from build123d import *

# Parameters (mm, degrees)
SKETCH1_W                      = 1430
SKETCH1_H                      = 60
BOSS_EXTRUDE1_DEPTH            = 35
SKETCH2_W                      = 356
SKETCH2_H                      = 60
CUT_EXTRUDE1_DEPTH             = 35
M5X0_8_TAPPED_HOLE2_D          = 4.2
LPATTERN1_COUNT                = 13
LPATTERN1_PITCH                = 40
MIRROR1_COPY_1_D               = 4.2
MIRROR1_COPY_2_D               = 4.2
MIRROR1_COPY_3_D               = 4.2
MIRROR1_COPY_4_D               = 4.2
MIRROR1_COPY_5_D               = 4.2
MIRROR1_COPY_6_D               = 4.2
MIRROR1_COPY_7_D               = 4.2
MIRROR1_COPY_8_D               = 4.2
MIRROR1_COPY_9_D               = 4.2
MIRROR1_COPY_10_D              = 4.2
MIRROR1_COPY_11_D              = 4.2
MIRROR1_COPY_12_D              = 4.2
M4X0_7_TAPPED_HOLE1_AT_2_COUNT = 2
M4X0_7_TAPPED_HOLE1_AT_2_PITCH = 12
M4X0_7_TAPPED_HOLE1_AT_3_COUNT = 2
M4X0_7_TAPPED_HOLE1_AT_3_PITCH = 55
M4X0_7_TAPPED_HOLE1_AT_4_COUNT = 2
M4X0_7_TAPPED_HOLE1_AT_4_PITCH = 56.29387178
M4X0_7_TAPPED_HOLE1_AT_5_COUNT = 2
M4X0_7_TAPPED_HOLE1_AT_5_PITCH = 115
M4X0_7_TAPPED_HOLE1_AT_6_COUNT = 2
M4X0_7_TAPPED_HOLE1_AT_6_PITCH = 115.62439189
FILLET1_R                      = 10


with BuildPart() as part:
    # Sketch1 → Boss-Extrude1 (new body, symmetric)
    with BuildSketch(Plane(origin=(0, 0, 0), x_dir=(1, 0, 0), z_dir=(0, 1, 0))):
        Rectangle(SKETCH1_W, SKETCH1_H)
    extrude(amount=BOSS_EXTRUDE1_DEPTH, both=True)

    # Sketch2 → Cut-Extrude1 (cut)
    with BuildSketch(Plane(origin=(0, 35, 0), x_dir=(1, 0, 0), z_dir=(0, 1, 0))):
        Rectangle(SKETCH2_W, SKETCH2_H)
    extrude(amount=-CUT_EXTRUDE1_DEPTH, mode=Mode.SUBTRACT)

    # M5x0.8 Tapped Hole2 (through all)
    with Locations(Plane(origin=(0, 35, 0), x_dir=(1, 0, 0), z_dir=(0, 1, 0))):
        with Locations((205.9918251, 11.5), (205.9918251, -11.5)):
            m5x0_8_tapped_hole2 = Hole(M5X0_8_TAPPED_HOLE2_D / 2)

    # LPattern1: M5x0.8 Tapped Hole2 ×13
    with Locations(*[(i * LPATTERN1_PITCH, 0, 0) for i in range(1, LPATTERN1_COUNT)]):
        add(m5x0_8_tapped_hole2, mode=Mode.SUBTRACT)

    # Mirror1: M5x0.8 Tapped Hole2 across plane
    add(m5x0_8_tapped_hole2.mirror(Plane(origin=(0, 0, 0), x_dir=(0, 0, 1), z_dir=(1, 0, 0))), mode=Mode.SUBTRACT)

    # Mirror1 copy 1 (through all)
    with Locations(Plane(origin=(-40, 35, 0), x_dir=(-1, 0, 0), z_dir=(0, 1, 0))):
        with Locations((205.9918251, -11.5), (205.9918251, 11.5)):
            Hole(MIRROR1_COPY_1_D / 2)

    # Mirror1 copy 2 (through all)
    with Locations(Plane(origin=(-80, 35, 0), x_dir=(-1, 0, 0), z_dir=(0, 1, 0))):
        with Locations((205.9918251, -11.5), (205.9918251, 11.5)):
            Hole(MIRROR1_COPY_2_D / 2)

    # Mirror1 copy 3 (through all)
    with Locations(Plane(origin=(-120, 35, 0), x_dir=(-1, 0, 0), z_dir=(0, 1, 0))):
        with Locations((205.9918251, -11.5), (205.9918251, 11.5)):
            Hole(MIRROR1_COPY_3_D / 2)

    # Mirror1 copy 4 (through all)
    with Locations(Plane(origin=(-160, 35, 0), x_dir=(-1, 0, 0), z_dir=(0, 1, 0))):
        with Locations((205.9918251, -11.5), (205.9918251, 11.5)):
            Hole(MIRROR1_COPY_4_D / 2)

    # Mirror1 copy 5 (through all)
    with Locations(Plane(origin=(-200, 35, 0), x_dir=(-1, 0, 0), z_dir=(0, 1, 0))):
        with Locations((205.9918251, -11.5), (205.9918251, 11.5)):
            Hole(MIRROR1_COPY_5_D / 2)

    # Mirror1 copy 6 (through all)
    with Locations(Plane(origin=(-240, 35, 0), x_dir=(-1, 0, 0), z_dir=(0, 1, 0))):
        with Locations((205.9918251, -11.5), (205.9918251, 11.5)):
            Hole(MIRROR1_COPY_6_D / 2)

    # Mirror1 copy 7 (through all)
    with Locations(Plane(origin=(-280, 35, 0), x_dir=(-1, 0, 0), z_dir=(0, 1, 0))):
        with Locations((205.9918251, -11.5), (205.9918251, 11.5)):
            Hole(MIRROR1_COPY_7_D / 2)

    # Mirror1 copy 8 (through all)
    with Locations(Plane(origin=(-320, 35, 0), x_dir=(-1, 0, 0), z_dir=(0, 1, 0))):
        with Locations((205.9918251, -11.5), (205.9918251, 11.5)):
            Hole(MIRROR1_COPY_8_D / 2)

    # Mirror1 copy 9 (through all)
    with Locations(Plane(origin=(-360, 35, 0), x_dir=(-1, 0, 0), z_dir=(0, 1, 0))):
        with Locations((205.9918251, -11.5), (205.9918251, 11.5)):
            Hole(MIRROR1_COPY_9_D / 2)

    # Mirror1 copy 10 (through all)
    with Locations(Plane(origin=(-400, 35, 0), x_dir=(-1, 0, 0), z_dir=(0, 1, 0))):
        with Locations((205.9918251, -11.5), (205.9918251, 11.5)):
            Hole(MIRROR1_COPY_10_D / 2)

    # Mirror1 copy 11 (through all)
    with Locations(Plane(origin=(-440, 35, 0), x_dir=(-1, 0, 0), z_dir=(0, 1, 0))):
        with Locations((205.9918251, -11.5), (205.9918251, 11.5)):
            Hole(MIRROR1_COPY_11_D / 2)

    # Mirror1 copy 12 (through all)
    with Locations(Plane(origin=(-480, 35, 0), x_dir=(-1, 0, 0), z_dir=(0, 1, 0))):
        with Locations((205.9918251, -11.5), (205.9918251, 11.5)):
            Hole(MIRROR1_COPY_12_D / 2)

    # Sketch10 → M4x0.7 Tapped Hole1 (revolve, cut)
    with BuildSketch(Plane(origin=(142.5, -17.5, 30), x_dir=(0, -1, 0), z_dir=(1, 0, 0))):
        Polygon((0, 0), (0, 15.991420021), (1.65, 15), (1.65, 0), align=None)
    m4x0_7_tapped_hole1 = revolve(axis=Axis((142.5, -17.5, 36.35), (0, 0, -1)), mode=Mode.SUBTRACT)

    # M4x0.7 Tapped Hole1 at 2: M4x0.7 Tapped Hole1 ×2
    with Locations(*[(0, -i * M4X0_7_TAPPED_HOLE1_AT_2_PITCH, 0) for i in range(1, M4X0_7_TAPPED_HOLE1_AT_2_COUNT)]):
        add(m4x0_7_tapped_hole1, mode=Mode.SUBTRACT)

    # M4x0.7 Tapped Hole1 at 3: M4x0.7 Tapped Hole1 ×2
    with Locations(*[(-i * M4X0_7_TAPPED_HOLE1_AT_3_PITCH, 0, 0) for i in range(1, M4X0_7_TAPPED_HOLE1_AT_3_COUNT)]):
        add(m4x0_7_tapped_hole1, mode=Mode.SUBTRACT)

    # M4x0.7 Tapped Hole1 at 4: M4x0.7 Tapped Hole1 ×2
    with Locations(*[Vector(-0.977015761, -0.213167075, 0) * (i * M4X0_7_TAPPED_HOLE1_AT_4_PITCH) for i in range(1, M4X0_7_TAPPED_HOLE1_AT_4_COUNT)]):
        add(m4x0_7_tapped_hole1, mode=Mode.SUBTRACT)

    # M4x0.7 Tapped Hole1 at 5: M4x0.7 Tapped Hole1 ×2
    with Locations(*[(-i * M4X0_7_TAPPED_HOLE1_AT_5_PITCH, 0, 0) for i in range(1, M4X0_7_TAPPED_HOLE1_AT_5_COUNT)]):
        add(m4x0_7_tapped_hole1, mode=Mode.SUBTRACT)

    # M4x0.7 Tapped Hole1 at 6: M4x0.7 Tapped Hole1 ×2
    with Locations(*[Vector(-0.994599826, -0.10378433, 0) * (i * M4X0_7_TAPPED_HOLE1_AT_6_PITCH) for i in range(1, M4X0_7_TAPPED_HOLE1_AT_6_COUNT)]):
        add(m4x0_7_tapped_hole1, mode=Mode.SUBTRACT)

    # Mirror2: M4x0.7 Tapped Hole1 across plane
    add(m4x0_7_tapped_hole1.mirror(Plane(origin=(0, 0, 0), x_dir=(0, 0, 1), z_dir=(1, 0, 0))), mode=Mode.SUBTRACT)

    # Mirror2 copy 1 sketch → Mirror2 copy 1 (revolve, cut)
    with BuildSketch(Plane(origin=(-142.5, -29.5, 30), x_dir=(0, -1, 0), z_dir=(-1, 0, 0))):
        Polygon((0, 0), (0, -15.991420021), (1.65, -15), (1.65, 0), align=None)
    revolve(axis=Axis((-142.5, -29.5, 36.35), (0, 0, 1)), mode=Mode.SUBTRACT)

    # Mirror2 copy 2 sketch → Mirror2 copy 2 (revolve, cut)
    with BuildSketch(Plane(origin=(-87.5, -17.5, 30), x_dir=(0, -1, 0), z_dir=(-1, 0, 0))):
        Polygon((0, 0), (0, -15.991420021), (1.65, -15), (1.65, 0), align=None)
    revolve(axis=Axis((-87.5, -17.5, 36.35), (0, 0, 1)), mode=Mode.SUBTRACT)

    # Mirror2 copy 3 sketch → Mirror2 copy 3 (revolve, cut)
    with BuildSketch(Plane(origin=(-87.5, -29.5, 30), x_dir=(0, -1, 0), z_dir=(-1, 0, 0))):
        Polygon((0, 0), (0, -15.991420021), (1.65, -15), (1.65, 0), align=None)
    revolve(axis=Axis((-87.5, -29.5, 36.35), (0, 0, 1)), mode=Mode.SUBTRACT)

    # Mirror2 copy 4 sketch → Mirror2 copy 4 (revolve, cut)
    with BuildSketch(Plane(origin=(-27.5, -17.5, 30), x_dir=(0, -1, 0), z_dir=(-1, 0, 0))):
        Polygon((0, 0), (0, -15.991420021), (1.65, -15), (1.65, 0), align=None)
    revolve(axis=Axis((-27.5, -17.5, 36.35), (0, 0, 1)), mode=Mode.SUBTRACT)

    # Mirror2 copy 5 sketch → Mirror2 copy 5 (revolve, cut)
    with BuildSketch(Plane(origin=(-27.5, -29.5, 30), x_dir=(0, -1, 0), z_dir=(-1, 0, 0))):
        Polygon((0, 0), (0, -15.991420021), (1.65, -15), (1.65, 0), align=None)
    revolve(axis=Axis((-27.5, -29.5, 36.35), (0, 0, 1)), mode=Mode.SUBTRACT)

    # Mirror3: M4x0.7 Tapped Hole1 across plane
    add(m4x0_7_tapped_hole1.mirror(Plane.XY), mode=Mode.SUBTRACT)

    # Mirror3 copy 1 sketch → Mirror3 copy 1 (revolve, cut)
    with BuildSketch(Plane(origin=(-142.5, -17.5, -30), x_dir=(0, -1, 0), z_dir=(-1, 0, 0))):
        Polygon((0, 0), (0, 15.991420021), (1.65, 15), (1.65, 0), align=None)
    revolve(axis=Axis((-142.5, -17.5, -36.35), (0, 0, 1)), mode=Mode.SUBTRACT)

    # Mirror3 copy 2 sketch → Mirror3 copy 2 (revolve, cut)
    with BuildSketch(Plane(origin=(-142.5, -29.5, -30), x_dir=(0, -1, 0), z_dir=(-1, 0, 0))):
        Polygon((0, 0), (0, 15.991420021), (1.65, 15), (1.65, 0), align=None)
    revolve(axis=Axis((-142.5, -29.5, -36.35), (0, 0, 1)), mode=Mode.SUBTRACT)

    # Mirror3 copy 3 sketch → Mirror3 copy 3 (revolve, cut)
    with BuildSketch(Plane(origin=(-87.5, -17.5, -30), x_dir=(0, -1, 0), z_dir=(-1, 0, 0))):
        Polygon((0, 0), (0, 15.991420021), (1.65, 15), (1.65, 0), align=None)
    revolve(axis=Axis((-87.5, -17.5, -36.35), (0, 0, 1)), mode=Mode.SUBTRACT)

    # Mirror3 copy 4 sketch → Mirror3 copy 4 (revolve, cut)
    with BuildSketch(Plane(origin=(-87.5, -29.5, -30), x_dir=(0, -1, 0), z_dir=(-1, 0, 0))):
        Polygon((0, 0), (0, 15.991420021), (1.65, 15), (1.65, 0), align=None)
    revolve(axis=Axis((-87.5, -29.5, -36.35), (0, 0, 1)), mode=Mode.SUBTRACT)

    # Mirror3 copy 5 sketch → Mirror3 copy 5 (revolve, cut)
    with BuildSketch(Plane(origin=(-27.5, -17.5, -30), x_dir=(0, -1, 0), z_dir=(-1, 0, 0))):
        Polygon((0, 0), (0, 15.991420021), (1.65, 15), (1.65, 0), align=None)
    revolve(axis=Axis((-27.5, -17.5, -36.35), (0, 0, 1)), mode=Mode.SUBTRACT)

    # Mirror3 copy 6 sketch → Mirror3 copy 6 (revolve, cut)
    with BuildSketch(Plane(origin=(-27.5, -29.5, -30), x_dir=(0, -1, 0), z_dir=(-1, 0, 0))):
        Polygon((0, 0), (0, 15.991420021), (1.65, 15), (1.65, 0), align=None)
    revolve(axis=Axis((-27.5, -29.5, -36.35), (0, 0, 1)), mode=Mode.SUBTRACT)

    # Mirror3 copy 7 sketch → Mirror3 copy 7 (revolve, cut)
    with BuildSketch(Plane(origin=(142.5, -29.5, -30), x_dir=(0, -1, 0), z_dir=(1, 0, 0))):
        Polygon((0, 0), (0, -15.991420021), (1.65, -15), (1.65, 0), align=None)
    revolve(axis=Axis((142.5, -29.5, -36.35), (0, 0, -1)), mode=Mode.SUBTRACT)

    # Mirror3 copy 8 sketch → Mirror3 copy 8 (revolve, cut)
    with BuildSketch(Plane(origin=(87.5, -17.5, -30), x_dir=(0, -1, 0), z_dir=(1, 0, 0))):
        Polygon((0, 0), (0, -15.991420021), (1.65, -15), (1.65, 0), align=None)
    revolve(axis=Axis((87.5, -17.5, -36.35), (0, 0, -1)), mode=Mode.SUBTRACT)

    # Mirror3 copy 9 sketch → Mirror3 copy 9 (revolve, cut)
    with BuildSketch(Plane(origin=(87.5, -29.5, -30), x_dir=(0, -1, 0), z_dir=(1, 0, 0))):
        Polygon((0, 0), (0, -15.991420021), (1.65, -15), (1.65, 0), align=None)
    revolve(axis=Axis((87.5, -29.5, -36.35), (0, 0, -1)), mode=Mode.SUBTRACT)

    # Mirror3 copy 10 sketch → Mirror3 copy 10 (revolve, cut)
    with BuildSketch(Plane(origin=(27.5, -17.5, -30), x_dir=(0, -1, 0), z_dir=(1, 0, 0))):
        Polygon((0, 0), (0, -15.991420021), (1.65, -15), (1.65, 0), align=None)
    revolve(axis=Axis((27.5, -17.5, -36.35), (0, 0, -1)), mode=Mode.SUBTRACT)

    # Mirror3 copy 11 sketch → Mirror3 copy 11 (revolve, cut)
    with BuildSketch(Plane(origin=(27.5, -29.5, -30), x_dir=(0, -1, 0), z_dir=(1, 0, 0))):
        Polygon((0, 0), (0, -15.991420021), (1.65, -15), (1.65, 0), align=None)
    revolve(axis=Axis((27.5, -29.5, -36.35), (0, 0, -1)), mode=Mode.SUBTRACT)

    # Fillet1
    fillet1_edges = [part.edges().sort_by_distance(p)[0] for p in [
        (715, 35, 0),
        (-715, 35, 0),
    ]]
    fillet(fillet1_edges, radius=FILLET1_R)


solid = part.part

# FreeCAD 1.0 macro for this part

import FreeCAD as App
import Part
import Sketcher
from FreeCAD import Vector
Q = App.Units.Quantity


def edges_at(feature, points):
    """Names of the edges that pass closest to the given points."""
    edges = feature.Shape.Edges
    near = lambda p: min(range(len(edges)), key=lambda i: edges[i].distToShape(Part.Vertex(*p))[0])
    return sorted({f"Edge{near(p) + 1}" for p in points})


def add_polygon(sketch, points):
    """Adds a closed chain of lines whose ends are joined by coincident constraints."""
    first, n = sketch.GeometryCount, len(points)
    for a, b in zip(points, points[1:] + points[:1]):
        sketch.addGeometry(Part.LineSegment(App.Vector(*a, 0), App.Vector(*b, 0)), False)
    for i in range(n):
        sketch.addConstraint(Sketcher.Constraint("Coincident", first + i, 2, first + (i + 1) % n, 1))

doc = App.newDocument("Part")
body = doc.addObject("PartDesign::Body", "Body")

sketch1 = body.newObject("Sketcher::SketchObject", "Sketch")
sketch1.AttachmentSupport = (doc.getObject("XZ_Plane"), [""])
sketch1.MapMode = "FlatFace"
add_polygon(sketch1, [(-715, -30), (-715, 30), (715, 30), (715, -30)])
sketch1.addConstraint([
    Sketcher.Constraint("Vertical", 0),
    Sketcher.Constraint("Horizontal", 1),
    Sketcher.Constraint("Vertical", 2),
    Sketcher.Constraint("Horizontal", 3),
    Sketcher.Constraint("Symmetric", 0, 2, 2, 2, -1, 1),
    Sketcher.Constraint("DistanceX", 1, 1, 1, 2, 1430.0),
    Sketcher.Constraint("DistanceY", 0, 1, 0, 2, 60.0),
])
pad1 = body.newObject("PartDesign::Pad", "Pad")
pad1.Profile = sketch1
pad1.Length = 70
pad1.Midplane = True

sketch2 = body.newObject("Sketcher::SketchObject", "Sketch001")
sketch2.AttachmentSupport = (doc.getObject("XZ_Plane"), [""])
sketch2.MapMode = "FlatFace"
sketch2.AttachmentOffset = App.Placement(Vector(0, 0, -35), App.Rotation())
add_polygon(sketch2, [(-178, -30), (-178, 30), (178, 30), (178, -30)])
sketch2.addConstraint([
    Sketcher.Constraint("Vertical", 0),
    Sketcher.Constraint("Horizontal", 1),
    Sketcher.Constraint("Vertical", 2),
    Sketcher.Constraint("Horizontal", 3),
    Sketcher.Constraint("Symmetric", 0, 2, 2, 2, -1, 1),
    Sketcher.Constraint("DistanceX", 1, 1, 1, 2, 356.0),
    Sketcher.Constraint("DistanceY", 0, 1, 0, 2, 60.0),
])
pocket1 = body.newObject("PartDesign::Pocket", "Pocket")
pocket1.Profile = sketch2
pocket1.Length = 35
pocket1.Reversed = True

sketch3 = body.newObject("Sketcher::SketchObject", "Sketch002")
sketch3.AttachmentSupport = (doc.getObject("XZ_Plane"), [""])
sketch3.MapMode = "FlatFace"
sketch3.AttachmentOffset = App.Placement(Vector(0, 0, -35), App.Rotation())
sketch3.addGeometry([
    Part.Circle(Vector(206, -11.5, 0), Vector(0, 0, 1), 2.1),
    Part.Circle(Vector(206, 11.5, 0), Vector(0, 0, 1), 2.1),
], False)
sketch3.addConstraint([
    Sketcher.Constraint("Equal", 0, 1),
    Sketcher.Constraint("Symmetric", 0, 3, 1, 3, -1),
    Sketcher.Constraint("Diameter", 0, 4.2),
    Sketcher.Constraint("DistanceY", 0, 3, 1, 3, 23.0),
    Sketcher.Constraint("DistanceX", -1, 1, 0, 3, 205.991825),
])
doc.recompute()
hole = body.newObject("PartDesign::Hole", "Hole")
hole.Profile = sketch3
hole.ThreadType = "None"
hole.Diameter = 4.2
hole.DepthType = "ThroughAll"
hole.Reversed = True
doc.recompute()

linearpattern = body.newObject("PartDesign::LinearPattern", "LinearPattern")
linearpattern.Originals = [hole]
linearpattern.Direction = (doc.getObject("X_Axis"), [""])
linearpattern.Mode = "offset"
linearpattern.Offset = 40
linearpattern.Occurrences = 13
body.Tip = linearpattern
doc.recompute()

mirrored = body.newObject("PartDesign::Mirrored", "Mirrored")
mirrored.Originals = [hole]
mirrored.MirrorPlane = (doc.getObject("YZ_Plane"), [""])
body.Tip = mirrored

sketch4 = body.newObject("Sketcher::SketchObject", "Sketch003")
sketch4.AttachmentSupport = (doc.getObject("XZ_Plane"), [""])
sketch4.MapMode = "FlatFace"
sketch4.AttachmentOffset = App.Placement(Vector(0, 0, -35), App.Rotation())
sketch4.addGeometry([
    Part.Circle(Vector(-246, -11.5, 0), Vector(0, 0, 1), 2.1),
    Part.Circle(Vector(-246, 11.5, 0), Vector(0, 0, 1), 2.1),
], False)
sketch4.addConstraint([
    Sketcher.Constraint("Equal", 0, 1),
    Sketcher.Constraint("Symmetric", 0, 3, 1, 3, -1),
    Sketcher.Constraint("Diameter", 0, 4.2),
    Sketcher.Constraint("DistanceY", 0, 3, 1, 3, 23.0),
    Sketcher.Constraint("DistanceX", 0, 3, -1, 1, 245.991825),
])
doc.recompute()
hole2 = body.newObject("PartDesign::Hole", "Hole001")
hole2.Profile = sketch4
hole2.ThreadType = "None"
hole2.Diameter = 4.2
hole2.DepthType = "ThroughAll"
hole2.Reversed = True

sketch5 = body.newObject("Sketcher::SketchObject", "Sketch004")
sketch5.AttachmentSupport = (doc.getObject("XZ_Plane"), [""])
sketch5.MapMode = "FlatFace"
sketch5.AttachmentOffset = App.Placement(Vector(0, 0, -35), App.Rotation())
sketch5.addGeometry([
    Part.Circle(Vector(-286, -11.5, 0), Vector(0, 0, 1), 2.1),
    Part.Circle(Vector(-286, 11.5, 0), Vector(0, 0, 1), 2.1),
], False)
sketch5.addConstraint([
    Sketcher.Constraint("Equal", 0, 1),
    Sketcher.Constraint("Symmetric", 0, 3, 1, 3, -1),
    Sketcher.Constraint("Diameter", 0, 4.2),
    Sketcher.Constraint("DistanceY", 0, 3, 1, 3, 23.0),
    Sketcher.Constraint("DistanceX", 0, 3, -1, 1, 285.991825),
])
doc.recompute()
hole3 = body.newObject("PartDesign::Hole", "Hole002")
hole3.Profile = sketch5
hole3.ThreadType = "None"
hole3.Diameter = 4.2
hole3.DepthType = "ThroughAll"
hole3.Reversed = True

sketch6 = body.newObject("Sketcher::SketchObject", "Sketch005")
sketch6.AttachmentSupport = (doc.getObject("XZ_Plane"), [""])
sketch6.MapMode = "FlatFace"
sketch6.AttachmentOffset = App.Placement(Vector(0, 0, -35), App.Rotation())
sketch6.addGeometry([
    Part.Circle(Vector(-326, -11.5, 0), Vector(0, 0, 1), 2.1),
    Part.Circle(Vector(-326, 11.5, 0), Vector(0, 0, 1), 2.1),
], False)
sketch6.addConstraint([
    Sketcher.Constraint("Equal", 0, 1),
    Sketcher.Constraint("Symmetric", 0, 3, 1, 3, -1),
    Sketcher.Constraint("Diameter", 0, 4.2),
    Sketcher.Constraint("DistanceY", 0, 3, 1, 3, 23.0),
    Sketcher.Constraint("DistanceX", 0, 3, -1, 1, 325.991825),
])
doc.recompute()
hole4 = body.newObject("PartDesign::Hole", "Hole003")
hole4.Profile = sketch6
hole4.ThreadType = "None"
hole4.Diameter = 4.2
hole4.DepthType = "ThroughAll"
hole4.Reversed = True

sketch7 = body.newObject("Sketcher::SketchObject", "Sketch006")
sketch7.AttachmentSupport = (doc.getObject("XZ_Plane"), [""])
sketch7.MapMode = "FlatFace"
sketch7.AttachmentOffset = App.Placement(Vector(0, 0, -35), App.Rotation())
sketch7.addGeometry([
    Part.Circle(Vector(-366, -11.5, 0), Vector(0, 0, 1), 2.1),
    Part.Circle(Vector(-366, 11.5, 0), Vector(0, 0, 1), 2.1),
], False)
sketch7.addConstraint([
    Sketcher.Constraint("Equal", 0, 1),
    Sketcher.Constraint("Symmetric", 0, 3, 1, 3, -1),
    Sketcher.Constraint("Diameter", 0, 4.2),
    Sketcher.Constraint("DistanceY", 0, 3, 1, 3, 23.0),
    Sketcher.Constraint("DistanceX", 0, 3, -1, 1, 365.991825),
])
doc.recompute()
hole5 = body.newObject("PartDesign::Hole", "Hole004")
hole5.Profile = sketch7
hole5.ThreadType = "None"
hole5.Diameter = 4.2
hole5.DepthType = "ThroughAll"
hole5.Reversed = True

sketch8 = body.newObject("Sketcher::SketchObject", "Sketch007")
sketch8.AttachmentSupport = (doc.getObject("XZ_Plane"), [""])
sketch8.MapMode = "FlatFace"
sketch8.AttachmentOffset = App.Placement(Vector(0, 0, -35), App.Rotation())
sketch8.addGeometry([
    Part.Circle(Vector(-406, -11.5, 0), Vector(0, 0, 1), 2.1),
    Part.Circle(Vector(-406, 11.5, 0), Vector(0, 0, 1), 2.1),
], False)
sketch8.addConstraint([
    Sketcher.Constraint("Equal", 0, 1),
    Sketcher.Constraint("Symmetric", 0, 3, 1, 3, -1),
    Sketcher.Constraint("Diameter", 0, 4.2),
    Sketcher.Constraint("DistanceY", 0, 3, 1, 3, 23.0),
    Sketcher.Constraint("DistanceX", 0, 3, -1, 1, 405.991825),
])
doc.recompute()
hole6 = body.newObject("PartDesign::Hole", "Hole005")
hole6.Profile = sketch8
hole6.ThreadType = "None"
hole6.Diameter = 4.2
hole6.DepthType = "ThroughAll"
hole6.Reversed = True

sketch9 = body.newObject("Sketcher::SketchObject", "Sketch008")
sketch9.AttachmentSupport = (doc.getObject("XZ_Plane"), [""])
sketch9.MapMode = "FlatFace"
sketch9.AttachmentOffset = App.Placement(Vector(0, 0, -35), App.Rotation())
sketch9.addGeometry([
    Part.Circle(Vector(-446, -11.5, 0), Vector(0, 0, 1), 2.1),
    Part.Circle(Vector(-446, 11.5, 0), Vector(0, 0, 1), 2.1),
], False)
sketch9.addConstraint([
    Sketcher.Constraint("Equal", 0, 1),
    Sketcher.Constraint("Symmetric", 0, 3, 1, 3, -1),
    Sketcher.Constraint("Diameter", 0, 4.2),
    Sketcher.Constraint("DistanceY", 0, 3, 1, 3, 23.0),
    Sketcher.Constraint("DistanceX", 0, 3, -1, 1, 445.991825),
])
doc.recompute()
hole7 = body.newObject("PartDesign::Hole", "Hole006")
hole7.Profile = sketch9
hole7.ThreadType = "None"
hole7.Diameter = 4.2
hole7.DepthType = "ThroughAll"
hole7.Reversed = True

sketch10 = body.newObject("Sketcher::SketchObject", "Sketch009")
sketch10.AttachmentSupport = (doc.getObject("XZ_Plane"), [""])
sketch10.MapMode = "FlatFace"
sketch10.AttachmentOffset = App.Placement(Vector(0, 0, -35), App.Rotation())
sketch10.addGeometry([
    Part.Circle(Vector(-486, -11.5, 0), Vector(0, 0, 1), 2.1),
    Part.Circle(Vector(-486, 11.5, 0), Vector(0, 0, 1), 2.1),
], False)
sketch10.addConstraint([
    Sketcher.Constraint("Equal", 0, 1),
    Sketcher.Constraint("Symmetric", 0, 3, 1, 3, -1),
    Sketcher.Constraint("Diameter", 0, 4.2),
    Sketcher.Constraint("DistanceY", 0, 3, 1, 3, 23.0),
    Sketcher.Constraint("DistanceX", 0, 3, -1, 1, 485.991825),
])
doc.recompute()
hole8 = body.newObject("PartDesign::Hole", "Hole007")
hole8.Profile = sketch10
hole8.ThreadType = "None"
hole8.Diameter = 4.2
hole8.DepthType = "ThroughAll"
hole8.Reversed = True

sketch11 = body.newObject("Sketcher::SketchObject", "Sketch010")
sketch11.AttachmentSupport = (doc.getObject("XZ_Plane"), [""])
sketch11.MapMode = "FlatFace"
sketch11.AttachmentOffset = App.Placement(Vector(0, 0, -35), App.Rotation())
sketch11.addGeometry([
    Part.Circle(Vector(-526, -11.5, 0), Vector(0, 0, 1), 2.1),
    Part.Circle(Vector(-526, 11.5, 0), Vector(0, 0, 1), 2.1),
], False)
sketch11.addConstraint([
    Sketcher.Constraint("Equal", 0, 1),
    Sketcher.Constraint("Symmetric", 0, 3, 1, 3, -1),
    Sketcher.Constraint("Diameter", 0, 4.2),
    Sketcher.Constraint("DistanceY", 0, 3, 1, 3, 23.0),
    Sketcher.Constraint("DistanceX", 0, 3, -1, 1, 525.991825),
])
doc.recompute()
hole9 = body.newObject("PartDesign::Hole", "Hole008")
hole9.Profile = sketch11
hole9.ThreadType = "None"
hole9.Diameter = 4.2
hole9.DepthType = "ThroughAll"
hole9.Reversed = True

sketch12 = body.newObject("Sketcher::SketchObject", "Sketch011")
sketch12.AttachmentSupport = (doc.getObject("XZ_Plane"), [""])
sketch12.MapMode = "FlatFace"
sketch12.AttachmentOffset = App.Placement(Vector(0, 0, -35), App.Rotation())
sketch12.addGeometry([
    Part.Circle(Vector(-566, -11.5, 0), Vector(0, 0, 1), 2.1),
    Part.Circle(Vector(-566, 11.5, 0), Vector(0, 0, 1), 2.1),
], False)
sketch12.addConstraint([
    Sketcher.Constraint("Equal", 0, 1),
    Sketcher.Constraint("Symmetric", 0, 3, 1, 3, -1),
    Sketcher.Constraint("Diameter", 0, 4.2),
    Sketcher.Constraint("DistanceY", 0, 3, 1, 3, 23.0),
    Sketcher.Constraint("DistanceX", 0, 3, -1, 1, 565.991825),
])
doc.recompute()
hole10 = body.newObject("PartDesign::Hole", "Hole009")
hole10.Profile = sketch12
hole10.ThreadType = "None"
hole10.Diameter = 4.2
hole10.DepthType = "ThroughAll"
hole10.Reversed = True

sketch13 = body.newObject("Sketcher::SketchObject", "Sketch012")
sketch13.AttachmentSupport = (doc.getObject("XZ_Plane"), [""])
sketch13.MapMode = "FlatFace"
sketch13.AttachmentOffset = App.Placement(Vector(0, 0, -35), App.Rotation())
sketch13.addGeometry([
    Part.Circle(Vector(-606, -11.5, 0), Vector(0, 0, 1), 2.1),
    Part.Circle(Vector(-606, 11.5, 0), Vector(0, 0, 1), 2.1),
], False)
sketch13.addConstraint([
    Sketcher.Constraint("Equal", 0, 1),
    Sketcher.Constraint("Symmetric", 0, 3, 1, 3, -1),
    Sketcher.Constraint("Diameter", 0, 4.2),
    Sketcher.Constraint("DistanceY", 0, 3, 1, 3, 23.0),
    Sketcher.Constraint("DistanceX", 0, 3, -1, 1, 605.991825),
])
doc.recompute()
hole11 = body.newObject("PartDesign::Hole", "Hole010")
hole11.Profile = sketch13
hole11.ThreadType = "None"
hole11.Diameter = 4.2
hole11.DepthType = "ThroughAll"
hole11.Reversed = True

sketch14 = body.newObject("Sketcher::SketchObject", "Sketch013")
sketch14.AttachmentSupport = (doc.getObject("XZ_Plane"), [""])
sketch14.MapMode = "FlatFace"
sketch14.AttachmentOffset = App.Placement(Vector(0, 0, -35), App.Rotation())
sketch14.addGeometry([
    Part.Circle(Vector(-646, -11.5, 0), Vector(0, 0, 1), 2.1),
    Part.Circle(Vector(-646, 11.5, 0), Vector(0, 0, 1), 2.1),
], False)
sketch14.addConstraint([
    Sketcher.Constraint("Equal", 0, 1),
    Sketcher.Constraint("Symmetric", 0, 3, 1, 3, -1),
    Sketcher.Constraint("Diameter", 0, 4.2),
    Sketcher.Constraint("DistanceY", 0, 3, 1, 3, 23.0),
    Sketcher.Constraint("DistanceX", 0, 3, -1, 1, 645.991825),
])
doc.recompute()
hole12 = body.newObject("PartDesign::Hole", "Hole011")
hole12.Profile = sketch14
hole12.ThreadType = "None"
hole12.Diameter = 4.2
hole12.DepthType = "ThroughAll"
hole12.Reversed = True

sketch15 = body.newObject("Sketcher::SketchObject", "Sketch014")
sketch15.AttachmentSupport = (doc.getObject("XZ_Plane"), [""])
sketch15.MapMode = "FlatFace"
sketch15.AttachmentOffset = App.Placement(Vector(0, 0, -35), App.Rotation())
sketch15.addGeometry([
    Part.Circle(Vector(-686, -11.5, 0), Vector(0, 0, 1), 2.1),
    Part.Circle(Vector(-686, 11.5, 0), Vector(0, 0, 1), 2.1),
], False)
sketch15.addConstraint([
    Sketcher.Constraint("Equal", 0, 1),
    Sketcher.Constraint("Symmetric", 0, 3, 1, 3, -1),
    Sketcher.Constraint("Diameter", 0, 4.2),
    Sketcher.Constraint("DistanceY", 0, 3, 1, 3, 23.0),
    Sketcher.Constraint("DistanceX", 0, 3, -1, 1, 685.991825),
])
doc.recompute()
hole13 = body.newObject("PartDesign::Hole", "Hole012")
hole13.Profile = sketch15
hole13.ThreadType = "None"
hole13.Diameter = 4.2
hole13.DepthType = "ThroughAll"
hole13.Reversed = True

sketch16 = body.newObject("Sketcher::SketchObject", "Sketch015")
sketch16.AttachmentSupport = (doc.getObject("YZ_Plane"), [""])
sketch16.MapMode = "FlatFace"
sketch16.AttachmentOffset = App.Placement(Vector(0, 0, 142.5), App.Rotation())
add_polygon(sketch16, [(-17.5, 14), (-17.5, 30), (-19.1, 30), (-19.1, 15)])
sketch16.addGeometry(Part.LineSegment(Vector(-17.5, 30, 0), Vector(-17.5, 14, 0)), True)
sketch16.addConstraint([
    Sketcher.Constraint("Vertical", 0),
    Sketcher.Constraint("Horizontal", 1),
    Sketcher.Constraint("Vertical", 2),
    Sketcher.Constraint("Vertical", 4),
    Sketcher.Constraint("Coincident", 4, 1, 0, 2),
    Sketcher.Constraint("Equal", 0, 4),
    Sketcher.Constraint("DistanceY", 2, 2, 2, 1, 15.0),
    Sketcher.Constraint("Angle", 3, Q("-31 deg")),
    Sketcher.Constraint("DistanceY", -1, 1, 0, 2, 30.0),
    Sketcher.Constraint("DistanceX", 1, 2, 1, 1, 1.65),
    Sketcher.Constraint("DistanceX", 0, 2, -1, 1, 17.5),
])
groove = body.newObject("PartDesign::Groove", "Groove")
groove.Profile = sketch16
groove.ReferenceAxis = (sketch16, ["Axis0"])
groove.Angle = 360
doc.recompute()

linearpattern2 = body.newObject("PartDesign::LinearPattern", "LinearPattern001")
linearpattern2.Originals = [groove]
linearpattern2.Direction = (doc.getObject("Y_Axis"), [""])
linearpattern2.Mode = "offset"
linearpattern2.Offset = 12
linearpattern2.Occurrences = 2
linearpattern2.Reversed = True
body.Tip = linearpattern2
doc.recompute()

linearpattern3 = body.newObject("PartDesign::LinearPattern", "LinearPattern002")
linearpattern3.Originals = [groove]
linearpattern3.Direction = (doc.getObject("X_Axis"), [""])
linearpattern3.Mode = "offset"
linearpattern3.Offset = 55
linearpattern3.Occurrences = 2
linearpattern3.Reversed = True
body.Tip = linearpattern3
doc.recompute()

datumline = body.newObject("PartDesign::Line", "DatumLine")
datumline.Placement = App.Placement(Vector(0, 0, 0), App.Rotation(Vector(0, 0, 1), Vector(-0.977015761, -0.213167075, 0)))
linearpattern4 = body.newObject("PartDesign::LinearPattern", "LinearPattern003")
linearpattern4.Originals = [groove]
linearpattern4.Direction = (datumline, [""])
linearpattern4.Mode = "offset"
linearpattern4.Offset = 56.293872
linearpattern4.Occurrences = 2
body.Tip = linearpattern4
doc.recompute()

linearpattern5 = body.newObject("PartDesign::LinearPattern", "LinearPattern004")
linearpattern5.Originals = [groove]
linearpattern5.Direction = (doc.getObject("X_Axis"), [""])
linearpattern5.Mode = "offset"
linearpattern5.Offset = 115
linearpattern5.Occurrences = 2
linearpattern5.Reversed = True
body.Tip = linearpattern5
doc.recompute()

datumline2 = body.newObject("PartDesign::Line", "DatumLine001")
datumline2.Placement = App.Placement(Vector(0, 0, 0), App.Rotation(Vector(0, 0, 1), Vector(-0.994599825, -0.10378433, 0)))
linearpattern6 = body.newObject("PartDesign::LinearPattern", "LinearPattern005")
linearpattern6.Originals = [groove]
linearpattern6.Direction = (datumline2, [""])
linearpattern6.Mode = "offset"
linearpattern6.Offset = 115.624392
linearpattern6.Occurrences = 2
body.Tip = linearpattern6
doc.recompute()

mirrored2 = body.newObject("PartDesign::Mirrored", "Mirrored001")
mirrored2.Originals = [groove]
mirrored2.MirrorPlane = (doc.getObject("YZ_Plane"), [""])
body.Tip = mirrored2

sketch17 = body.newObject("Sketcher::SketchObject", "Sketch016")
sketch17.AttachmentSupport = (doc.getObject("YZ_Plane"), [""])
sketch17.MapMode = "FlatFace"
sketch17.AttachmentOffset = App.Placement(Vector(0, 0, -142.5), App.Rotation())
add_polygon(sketch17, [(-29.5, 30), (-29.5, 14), (-31.1, 15), (-31.1, 30)])
sketch17.addGeometry(Part.LineSegment(Vector(-29.5, 14, 0), Vector(-29.5, 30, 0)), True)
sketch17.addConstraint([
    Sketcher.Constraint("Vertical", 0),
    Sketcher.Constraint("Vertical", 2),
    Sketcher.Constraint("Horizontal", 3),
    Sketcher.Constraint("Vertical", 4),
    Sketcher.Constraint("Coincident", 4, 1, 0, 2),
    Sketcher.Constraint("Horizontal", 2, 2, 4, 2),
    Sketcher.Constraint("DistanceY", 2, 1, 2, 2, 15.0),
    Sketcher.Constraint("Angle", 1, Q("149 deg")),
    Sketcher.Constraint("DistanceY", -1, 1, 1, 2, 15.0),
    Sketcher.Constraint("DistanceX", 3, 1, 3, 2, 1.65),
    Sketcher.Constraint("DistanceX", 0, 2, -1, 1, 29.5),
])
groove2 = body.newObject("PartDesign::Groove", "Groove001")
groove2.Profile = sketch17
groove2.ReferenceAxis = (sketch17, ["Axis0"])
groove2.Angle = 360

sketch18 = body.newObject("Sketcher::SketchObject", "Sketch017")
sketch18.AttachmentSupport = (doc.getObject("YZ_Plane"), [""])
sketch18.MapMode = "FlatFace"
sketch18.AttachmentOffset = App.Placement(Vector(0, 0, -87.5), App.Rotation())
add_polygon(sketch18, [(-17.5, 30), (-17.5, 14), (-19.1, 15), (-19.1, 30)])
sketch18.addGeometry(Part.LineSegment(Vector(-17.5, 14, 0), Vector(-17.5, 30, 0)), True)
sketch18.addConstraint([
    Sketcher.Constraint("Vertical", 0),
    Sketcher.Constraint("Vertical", 2),
    Sketcher.Constraint("Horizontal", 3),
    Sketcher.Constraint("Vertical", 4),
    Sketcher.Constraint("Coincident", 4, 1, 0, 2),
    Sketcher.Constraint("Horizontal", 2, 2, 4, 2),
    Sketcher.Constraint("DistanceY", 2, 1, 2, 2, 15.0),
    Sketcher.Constraint("Angle", 1, Q("149 deg")),
    Sketcher.Constraint("DistanceY", -1, 1, 1, 2, 15.0),
    Sketcher.Constraint("DistanceX", 3, 1, 3, 2, 1.65),
    Sketcher.Constraint("DistanceX", 0, 2, -1, 1, 17.5),
])
groove3 = body.newObject("PartDesign::Groove", "Groove002")
groove3.Profile = sketch18
groove3.ReferenceAxis = (sketch18, ["Axis0"])
groove3.Angle = 360

sketch19 = body.newObject("Sketcher::SketchObject", "Sketch018")
sketch19.AttachmentSupport = (doc.getObject("YZ_Plane"), [""])
sketch19.MapMode = "FlatFace"
sketch19.AttachmentOffset = App.Placement(Vector(0, 0, -87.5), App.Rotation())
add_polygon(sketch19, [(-29.5, 30), (-29.5, 14), (-31.1, 15), (-31.1, 30)])
sketch19.addGeometry(Part.LineSegment(Vector(-29.5, 14, 0), Vector(-29.5, 30, 0)), True)
sketch19.addConstraint([
    Sketcher.Constraint("Vertical", 0),
    Sketcher.Constraint("Vertical", 2),
    Sketcher.Constraint("Horizontal", 3),
    Sketcher.Constraint("Vertical", 4),
    Sketcher.Constraint("Coincident", 4, 1, 0, 2),
    Sketcher.Constraint("Horizontal", 2, 2, 4, 2),
    Sketcher.Constraint("DistanceY", 2, 1, 2, 2, 15.0),
    Sketcher.Constraint("Angle", 1, Q("149 deg")),
    Sketcher.Constraint("DistanceY", -1, 1, 1, 2, 15.0),
    Sketcher.Constraint("DistanceX", 3, 1, 3, 2, 1.65),
    Sketcher.Constraint("DistanceX", 0, 2, -1, 1, 29.5),
])
groove4 = body.newObject("PartDesign::Groove", "Groove003")
groove4.Profile = sketch19
groove4.ReferenceAxis = (sketch19, ["Axis0"])
groove4.Angle = 360

sketch20 = body.newObject("Sketcher::SketchObject", "Sketch019")
sketch20.AttachmentSupport = (doc.getObject("YZ_Plane"), [""])
sketch20.MapMode = "FlatFace"
sketch20.AttachmentOffset = App.Placement(Vector(0, 0, -27.5), App.Rotation())
add_polygon(sketch20, [(-17.5, 30), (-17.5, 14), (-19.1, 15), (-19.1, 30)])
sketch20.addGeometry(Part.LineSegment(Vector(-17.5, 14, 0), Vector(-17.5, 30, 0)), True)
sketch20.addConstraint([
    Sketcher.Constraint("Vertical", 0),
    Sketcher.Constraint("Vertical", 2),
    Sketcher.Constraint("Horizontal", 3),
    Sketcher.Constraint("Vertical", 4),
    Sketcher.Constraint("Coincident", 4, 1, 0, 2),
    Sketcher.Constraint("Horizontal", 2, 2, 4, 2),
    Sketcher.Constraint("DistanceY", 2, 1, 2, 2, 15.0),
    Sketcher.Constraint("Angle", 1, Q("149 deg")),
    Sketcher.Constraint("DistanceY", -1, 1, 1, 2, 15.0),
    Sketcher.Constraint("DistanceX", 3, 1, 3, 2, 1.65),
    Sketcher.Constraint("DistanceX", 0, 2, -1, 1, 17.5),
])
groove5 = body.newObject("PartDesign::Groove", "Groove004")
groove5.Profile = sketch20
groove5.ReferenceAxis = (sketch20, ["Axis0"])
groove5.Angle = 360

sketch21 = body.newObject("Sketcher::SketchObject", "Sketch020")
sketch21.AttachmentSupport = (doc.getObject("YZ_Plane"), [""])
sketch21.MapMode = "FlatFace"
sketch21.AttachmentOffset = App.Placement(Vector(0, 0, -27.5), App.Rotation())
add_polygon(sketch21, [(-29.5, 30), (-29.5, 14), (-31.1, 15), (-31.1, 30)])
sketch21.addGeometry(Part.LineSegment(Vector(-29.5, 14, 0), Vector(-29.5, 30, 0)), True)
sketch21.addConstraint([
    Sketcher.Constraint("Vertical", 0),
    Sketcher.Constraint("Vertical", 2),
    Sketcher.Constraint("Horizontal", 3),
    Sketcher.Constraint("Vertical", 4),
    Sketcher.Constraint("Coincident", 4, 1, 0, 2),
    Sketcher.Constraint("Horizontal", 2, 2, 4, 2),
    Sketcher.Constraint("DistanceY", 2, 1, 2, 2, 15.0),
    Sketcher.Constraint("Angle", 1, Q("149 deg")),
    Sketcher.Constraint("DistanceY", -1, 1, 1, 2, 15.0),
    Sketcher.Constraint("DistanceX", 3, 1, 3, 2, 1.65),
    Sketcher.Constraint("DistanceX", 0, 2, -1, 1, 29.5),
])
groove6 = body.newObject("PartDesign::Groove", "Groove005")
groove6.Profile = sketch21
groove6.ReferenceAxis = (sketch21, ["Axis0"])
groove6.Angle = 360
doc.recompute()

mirrored3 = body.newObject("PartDesign::Mirrored", "Mirrored002")
mirrored3.Originals = [groove]
mirrored3.MirrorPlane = (doc.getObject("XY_Plane"), [""])
body.Tip = mirrored3

sketch22 = body.newObject("Sketcher::SketchObject", "Sketch021")
sketch22.AttachmentSupport = (doc.getObject("YZ_Plane"), [""])
sketch22.MapMode = "FlatFace"
sketch22.AttachmentOffset = App.Placement(Vector(0, 0, -142.5), App.Rotation())
add_polygon(sketch22, [(-17.5, -14), (-17.5, -30), (-19.1, -30), (-19.1, -15)])
sketch22.addGeometry(Part.LineSegment(Vector(-17.5, -30, 0), Vector(-17.5, -14, 0)), True)
sketch22.addConstraint([
    Sketcher.Constraint("Vertical", 0),
    Sketcher.Constraint("Horizontal", 1),
    Sketcher.Constraint("Vertical", 2),
    Sketcher.Constraint("Vertical", 4),
    Sketcher.Constraint("Coincident", 4, 1, 0, 2),
    Sketcher.Constraint("Equal", 0, 4),
    Sketcher.Constraint("DistanceY", 2, 1, 2, 2, 15.0),
    Sketcher.Constraint("Angle", 3, Q("31 deg")),
    Sketcher.Constraint("DistanceY", 0, 2, -1, 1, 30.0),
    Sketcher.Constraint("DistanceX", 1, 2, 1, 1, 1.65),
    Sketcher.Constraint("DistanceX", 0, 2, -1, 1, 17.5),
])
groove7 = body.newObject("PartDesign::Groove", "Groove006")
groove7.Profile = sketch22
groove7.ReferenceAxis = (sketch22, ["Axis0"])
groove7.Angle = 360

sketch23 = body.newObject("Sketcher::SketchObject", "Sketch022")
sketch23.AttachmentSupport = (doc.getObject("YZ_Plane"), [""])
sketch23.MapMode = "FlatFace"
sketch23.AttachmentOffset = App.Placement(Vector(0, 0, -142.5), App.Rotation())
add_polygon(sketch23, [(-29.5, -14), (-29.5, -30), (-31.1, -30), (-31.1, -15)])
sketch23.addGeometry(Part.LineSegment(Vector(-29.5, -30, 0), Vector(-29.5, -14, 0)), True)
sketch23.addConstraint([
    Sketcher.Constraint("Vertical", 0),
    Sketcher.Constraint("Horizontal", 1),
    Sketcher.Constraint("Vertical", 2),
    Sketcher.Constraint("Vertical", 4),
    Sketcher.Constraint("Coincident", 4, 1, 0, 2),
    Sketcher.Constraint("Equal", 0, 4),
    Sketcher.Constraint("DistanceY", 2, 1, 2, 2, 15.0),
    Sketcher.Constraint("Angle", 3, Q("31 deg")),
    Sketcher.Constraint("DistanceY", 0, 2, -1, 1, 30.0),
    Sketcher.Constraint("DistanceX", 1, 2, 1, 1, 1.65),
    Sketcher.Constraint("DistanceX", 0, 2, -1, 1, 29.5),
])
groove8 = body.newObject("PartDesign::Groove", "Groove007")
groove8.Profile = sketch23
groove8.ReferenceAxis = (sketch23, ["Axis0"])
groove8.Angle = 360

sketch24 = body.newObject("Sketcher::SketchObject", "Sketch023")
sketch24.AttachmentSupport = (doc.getObject("YZ_Plane"), [""])
sketch24.MapMode = "FlatFace"
sketch24.AttachmentOffset = App.Placement(Vector(0, 0, -87.5), App.Rotation())
add_polygon(sketch24, [(-17.5, -14), (-17.5, -30), (-19.1, -30), (-19.1, -15)])
sketch24.addGeometry(Part.LineSegment(Vector(-17.5, -30, 0), Vector(-17.5, -14, 0)), True)
sketch24.addConstraint([
    Sketcher.Constraint("Vertical", 0),
    Sketcher.Constraint("Horizontal", 1),
    Sketcher.Constraint("Vertical", 2),
    Sketcher.Constraint("Vertical", 4),
    Sketcher.Constraint("Coincident", 4, 1, 0, 2),
    Sketcher.Constraint("Equal", 0, 4),
    Sketcher.Constraint("DistanceY", 2, 1, 2, 2, 15.0),
    Sketcher.Constraint("Angle", 3, Q("31 deg")),
    Sketcher.Constraint("DistanceY", 0, 2, -1, 1, 30.0),
    Sketcher.Constraint("DistanceX", 1, 2, 1, 1, 1.65),
    Sketcher.Constraint("DistanceX", 0, 2, -1, 1, 17.5),
])
groove9 = body.newObject("PartDesign::Groove", "Groove008")
groove9.Profile = sketch24
groove9.ReferenceAxis = (sketch24, ["Axis0"])
groove9.Angle = 360

sketch25 = body.newObject("Sketcher::SketchObject", "Sketch024")
sketch25.AttachmentSupport = (doc.getObject("YZ_Plane"), [""])
sketch25.MapMode = "FlatFace"
sketch25.AttachmentOffset = App.Placement(Vector(0, 0, -87.5), App.Rotation())
add_polygon(sketch25, [(-29.5, -14), (-29.5, -30), (-31.1, -30), (-31.1, -15)])
sketch25.addGeometry(Part.LineSegment(Vector(-29.5, -30, 0), Vector(-29.5, -14, 0)), True)
sketch25.addConstraint([
    Sketcher.Constraint("Vertical", 0),
    Sketcher.Constraint("Horizontal", 1),
    Sketcher.Constraint("Vertical", 2),
    Sketcher.Constraint("Vertical", 4),
    Sketcher.Constraint("Coincident", 4, 1, 0, 2),
    Sketcher.Constraint("Equal", 0, 4),
    Sketcher.Constraint("DistanceY", 2, 1, 2, 2, 15.0),
    Sketcher.Constraint("Angle", 3, Q("31 deg")),
    Sketcher.Constraint("DistanceY", 0, 2, -1, 1, 30.0),
    Sketcher.Constraint("DistanceX", 1, 2, 1, 1, 1.65),
    Sketcher.Constraint("DistanceX", 0, 2, -1, 1, 29.5),
])
groove10 = body.newObject("PartDesign::Groove", "Groove009")
groove10.Profile = sketch25
groove10.ReferenceAxis = (sketch25, ["Axis0"])
groove10.Angle = 360

sketch26 = body.newObject("Sketcher::SketchObject", "Sketch025")
sketch26.AttachmentSupport = (doc.getObject("YZ_Plane"), [""])
sketch26.MapMode = "FlatFace"
sketch26.AttachmentOffset = App.Placement(Vector(0, 0, -27.5), App.Rotation())
add_polygon(sketch26, [(-17.5, -14), (-17.5, -30), (-19.1, -30), (-19.1, -15)])
sketch26.addGeometry(Part.LineSegment(Vector(-17.5, -30, 0), Vector(-17.5, -14, 0)), True)
sketch26.addConstraint([
    Sketcher.Constraint("Vertical", 0),
    Sketcher.Constraint("Horizontal", 1),
    Sketcher.Constraint("Vertical", 2),
    Sketcher.Constraint("Vertical", 4),
    Sketcher.Constraint("Coincident", 4, 1, 0, 2),
    Sketcher.Constraint("Equal", 0, 4),
    Sketcher.Constraint("DistanceY", 2, 1, 2, 2, 15.0),
    Sketcher.Constraint("Angle", 3, Q("31 deg")),
    Sketcher.Constraint("DistanceY", 0, 2, -1, 1, 30.0),
    Sketcher.Constraint("DistanceX", 1, 2, 1, 1, 1.65),
    Sketcher.Constraint("DistanceX", 0, 2, -1, 1, 17.5),
])
groove11 = body.newObject("PartDesign::Groove", "Groove010")
groove11.Profile = sketch26
groove11.ReferenceAxis = (sketch26, ["Axis0"])
groove11.Angle = 360

sketch27 = body.newObject("Sketcher::SketchObject", "Sketch026")
sketch27.AttachmentSupport = (doc.getObject("YZ_Plane"), [""])
sketch27.MapMode = "FlatFace"
sketch27.AttachmentOffset = App.Placement(Vector(0, 0, -27.5), App.Rotation())
add_polygon(sketch27, [(-29.5, -14), (-29.5, -30), (-31.1, -30), (-31.1, -15)])
sketch27.addGeometry(Part.LineSegment(Vector(-29.5, -30, 0), Vector(-29.5, -14, 0)), True)
sketch27.addConstraint([
    Sketcher.Constraint("Vertical", 0),
    Sketcher.Constraint("Horizontal", 1),
    Sketcher.Constraint("Vertical", 2),
    Sketcher.Constraint("Vertical", 4),
    Sketcher.Constraint("Coincident", 4, 1, 0, 2),
    Sketcher.Constraint("Equal", 0, 4),
    Sketcher.Constraint("DistanceY", 2, 1, 2, 2, 15.0),
    Sketcher.Constraint("Angle", 3, Q("31 deg")),
    Sketcher.Constraint("DistanceY", 0, 2, -1, 1, 30.0),
    Sketcher.Constraint("DistanceX", 1, 2, 1, 1, 1.65),
    Sketcher.Constraint("DistanceX", 0, 2, -1, 1, 29.5),
])
groove12 = body.newObject("PartDesign::Groove", "Groove011")
groove12.Profile = sketch27
groove12.ReferenceAxis = (sketch27, ["Axis0"])
groove12.Angle = 360

sketch28 = body.newObject("Sketcher::SketchObject", "Sketch027")
sketch28.AttachmentSupport = (doc.getObject("YZ_Plane"), [""])
sketch28.MapMode = "FlatFace"
sketch28.AttachmentOffset = App.Placement(Vector(0, 0, 142.5), App.Rotation())
add_polygon(sketch28, [(-29.5, -30), (-29.5, -14), (-31.1, -15), (-31.1, -30)])
sketch28.addGeometry(Part.LineSegment(Vector(-29.5, -14, 0), Vector(-29.5, -30, 0)), True)
sketch28.addConstraint([
    Sketcher.Constraint("Vertical", 0),
    Sketcher.Constraint("Vertical", 2),
    Sketcher.Constraint("Horizontal", 3),
    Sketcher.Constraint("Vertical", 4),
    Sketcher.Constraint("Coincident", 4, 1, 0, 2),
    Sketcher.Constraint("Horizontal", 2, 2, 4, 2),
    Sketcher.Constraint("DistanceY", 2, 2, 2, 1, 15.0),
    Sketcher.Constraint("Angle", 1, Q("-149 deg")),
    Sketcher.Constraint("DistanceY", 1, 2, -1, 1, 15.0),
    Sketcher.Constraint("DistanceX", 3, 1, 3, 2, 1.65),
    Sketcher.Constraint("DistanceX", 0, 2, -1, 1, 29.5),
])
groove13 = body.newObject("PartDesign::Groove", "Groove012")
groove13.Profile = sketch28
groove13.ReferenceAxis = (sketch28, ["Axis0"])
groove13.Angle = 360

sketch29 = body.newObject("Sketcher::SketchObject", "Sketch028")
sketch29.AttachmentSupport = (doc.getObject("YZ_Plane"), [""])
sketch29.MapMode = "FlatFace"
sketch29.AttachmentOffset = App.Placement(Vector(0, 0, 87.5), App.Rotation())
add_polygon(sketch29, [(-17.5, -30), (-17.5, -14), (-19.1, -15), (-19.1, -30)])
sketch29.addGeometry(Part.LineSegment(Vector(-17.5, -14, 0), Vector(-17.5, -30, 0)), True)
sketch29.addConstraint([
    Sketcher.Constraint("Vertical", 0),
    Sketcher.Constraint("Vertical", 2),
    Sketcher.Constraint("Horizontal", 3),
    Sketcher.Constraint("Vertical", 4),
    Sketcher.Constraint("Coincident", 4, 1, 0, 2),
    Sketcher.Constraint("Horizontal", 2, 2, 4, 2),
    Sketcher.Constraint("DistanceY", 2, 2, 2, 1, 15.0),
    Sketcher.Constraint("Angle", 1, Q("-149 deg")),
    Sketcher.Constraint("DistanceY", 1, 2, -1, 1, 15.0),
    Sketcher.Constraint("DistanceX", 3, 1, 3, 2, 1.65),
    Sketcher.Constraint("DistanceX", 0, 2, -1, 1, 17.5),
])
groove14 = body.newObject("PartDesign::Groove", "Groove013")
groove14.Profile = sketch29
groove14.ReferenceAxis = (sketch29, ["Axis0"])
groove14.Angle = 360

sketch30 = body.newObject("Sketcher::SketchObject", "Sketch029")
sketch30.AttachmentSupport = (doc.getObject("YZ_Plane"), [""])
sketch30.MapMode = "FlatFace"
sketch30.AttachmentOffset = App.Placement(Vector(0, 0, 87.5), App.Rotation())
add_polygon(sketch30, [(-29.5, -30), (-29.5, -14), (-31.1, -15), (-31.1, -30)])
sketch30.addGeometry(Part.LineSegment(Vector(-29.5, -14, 0), Vector(-29.5, -30, 0)), True)
sketch30.addConstraint([
    Sketcher.Constraint("Vertical", 0),
    Sketcher.Constraint("Vertical", 2),
    Sketcher.Constraint("Horizontal", 3),
    Sketcher.Constraint("Vertical", 4),
    Sketcher.Constraint("Coincident", 4, 1, 0, 2),
    Sketcher.Constraint("Horizontal", 2, 2, 4, 2),
    Sketcher.Constraint("DistanceY", 2, 2, 2, 1, 15.0),
    Sketcher.Constraint("Angle", 1, Q("-149 deg")),
    Sketcher.Constraint("DistanceY", 1, 2, -1, 1, 15.0),
    Sketcher.Constraint("DistanceX", 3, 1, 3, 2, 1.65),
    Sketcher.Constraint("DistanceX", 0, 2, -1, 1, 29.5),
])
groove15 = body.newObject("PartDesign::Groove", "Groove014")
groove15.Profile = sketch30
groove15.ReferenceAxis = (sketch30, ["Axis0"])
groove15.Angle = 360

sketch31 = body.newObject("Sketcher::SketchObject", "Sketch030")
sketch31.AttachmentSupport = (doc.getObject("YZ_Plane"), [""])
sketch31.MapMode = "FlatFace"
sketch31.AttachmentOffset = App.Placement(Vector(0, 0, 27.5), App.Rotation())
add_polygon(sketch31, [(-17.5, -30), (-17.5, -14), (-19.1, -15), (-19.1, -30)])
sketch31.addGeometry(Part.LineSegment(Vector(-17.5, -14, 0), Vector(-17.5, -30, 0)), True)
sketch31.addConstraint([
    Sketcher.Constraint("Vertical", 0),
    Sketcher.Constraint("Vertical", 2),
    Sketcher.Constraint("Horizontal", 3),
    Sketcher.Constraint("Vertical", 4),
    Sketcher.Constraint("Coincident", 4, 1, 0, 2),
    Sketcher.Constraint("Horizontal", 2, 2, 4, 2),
    Sketcher.Constraint("DistanceY", 2, 2, 2, 1, 15.0),
    Sketcher.Constraint("Angle", 1, Q("-149 deg")),
    Sketcher.Constraint("DistanceY", 1, 2, -1, 1, 15.0),
    Sketcher.Constraint("DistanceX", 3, 1, 3, 2, 1.65),
    Sketcher.Constraint("DistanceX", 0, 2, -1, 1, 17.5),
])
groove16 = body.newObject("PartDesign::Groove", "Groove015")
groove16.Profile = sketch31
groove16.ReferenceAxis = (sketch31, ["Axis0"])
groove16.Angle = 360

sketch32 = body.newObject("Sketcher::SketchObject", "Sketch031")
sketch32.AttachmentSupport = (doc.getObject("YZ_Plane"), [""])
sketch32.MapMode = "FlatFace"
sketch32.AttachmentOffset = App.Placement(Vector(0, 0, 27.5), App.Rotation())
add_polygon(sketch32, [(-29.5, -30), (-29.5, -14), (-31.1, -15), (-31.1, -30)])
sketch32.addGeometry(Part.LineSegment(Vector(-29.5, -14, 0), Vector(-29.5, -30, 0)), True)
sketch32.addConstraint([
    Sketcher.Constraint("Vertical", 0),
    Sketcher.Constraint("Vertical", 2),
    Sketcher.Constraint("Horizontal", 3),
    Sketcher.Constraint("Vertical", 4),
    Sketcher.Constraint("Coincident", 4, 1, 0, 2),
    Sketcher.Constraint("Horizontal", 2, 2, 4, 2),
    Sketcher.Constraint("DistanceY", 2, 2, 2, 1, 15.0),
    Sketcher.Constraint("Angle", 1, Q("-149 deg")),
    Sketcher.Constraint("DistanceY", 1, 2, -1, 1, 15.0),
    Sketcher.Constraint("DistanceX", 3, 1, 3, 2, 1.65),
    Sketcher.Constraint("DistanceX", 0, 2, -1, 1, 29.5),
])
groove17 = body.newObject("PartDesign::Groove", "Groove016")
groove17.Profile = sketch32
groove17.ReferenceAxis = (sketch32, ["Axis0"])
groove17.Angle = 360
doc.recompute()

fillet = body.newObject("PartDesign::Fillet", "Fillet")
fillet.Base = (groove17, edges_at(groove17, [(715, 35, 0), (-715, 35, 0)]))
fillet.Radius = 10

doc.recompute()
